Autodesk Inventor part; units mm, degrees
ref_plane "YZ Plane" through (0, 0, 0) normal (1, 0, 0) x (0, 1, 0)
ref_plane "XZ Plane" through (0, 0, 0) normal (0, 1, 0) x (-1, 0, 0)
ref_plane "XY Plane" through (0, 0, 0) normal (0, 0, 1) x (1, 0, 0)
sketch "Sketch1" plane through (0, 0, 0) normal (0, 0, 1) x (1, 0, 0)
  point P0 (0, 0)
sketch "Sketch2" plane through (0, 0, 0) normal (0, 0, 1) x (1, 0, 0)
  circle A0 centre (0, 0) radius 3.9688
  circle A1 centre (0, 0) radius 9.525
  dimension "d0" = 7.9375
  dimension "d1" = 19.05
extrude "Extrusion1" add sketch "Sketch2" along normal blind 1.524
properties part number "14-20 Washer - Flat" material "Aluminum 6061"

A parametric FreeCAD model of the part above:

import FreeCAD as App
import Part
import Sketcher
Q = App.Units.Quantity

doc = App.newDocument("Part")
body = doc.addObject("PartDesign::Body", "Body")

# Sketch on XY plane
sketch1 = body.newObject("Sketcher::SketchObject", "Sketch")
sketch1.AttachmentSupport = (doc.getObject("XY_Plane"), [""])
sketch1.MapMode = "FlatFace"
sketch1.addGeometry(Part.Circle(App.Vector(0, 0, 0), App.Vector(0, 0, 1), 9.5), False)
sketch1.addGeometry(Part.Circle(App.Vector(0, 0, 0), App.Vector(0, 0, 1), 4), False)
sketch1.addConstraint(Sketcher.Constraint("Coincident", 0, 3, -1, 1))
sketch1.addConstraint(Sketcher.Constraint("Coincident", 1, 3, -1, 1))
sketch1.addConstraint(Sketcher.Constraint("Diameter", 0, Q("0.75 in")))
sketch1.addConstraint(Sketcher.Constraint("Diameter", 1, Q("0.3125 in")))
pad1 = body.newObject("PartDesign::Pad", "Pad")
pad1.Profile = sketch1
pad1.Length = Q("0.06 in")

doc.recompute()
